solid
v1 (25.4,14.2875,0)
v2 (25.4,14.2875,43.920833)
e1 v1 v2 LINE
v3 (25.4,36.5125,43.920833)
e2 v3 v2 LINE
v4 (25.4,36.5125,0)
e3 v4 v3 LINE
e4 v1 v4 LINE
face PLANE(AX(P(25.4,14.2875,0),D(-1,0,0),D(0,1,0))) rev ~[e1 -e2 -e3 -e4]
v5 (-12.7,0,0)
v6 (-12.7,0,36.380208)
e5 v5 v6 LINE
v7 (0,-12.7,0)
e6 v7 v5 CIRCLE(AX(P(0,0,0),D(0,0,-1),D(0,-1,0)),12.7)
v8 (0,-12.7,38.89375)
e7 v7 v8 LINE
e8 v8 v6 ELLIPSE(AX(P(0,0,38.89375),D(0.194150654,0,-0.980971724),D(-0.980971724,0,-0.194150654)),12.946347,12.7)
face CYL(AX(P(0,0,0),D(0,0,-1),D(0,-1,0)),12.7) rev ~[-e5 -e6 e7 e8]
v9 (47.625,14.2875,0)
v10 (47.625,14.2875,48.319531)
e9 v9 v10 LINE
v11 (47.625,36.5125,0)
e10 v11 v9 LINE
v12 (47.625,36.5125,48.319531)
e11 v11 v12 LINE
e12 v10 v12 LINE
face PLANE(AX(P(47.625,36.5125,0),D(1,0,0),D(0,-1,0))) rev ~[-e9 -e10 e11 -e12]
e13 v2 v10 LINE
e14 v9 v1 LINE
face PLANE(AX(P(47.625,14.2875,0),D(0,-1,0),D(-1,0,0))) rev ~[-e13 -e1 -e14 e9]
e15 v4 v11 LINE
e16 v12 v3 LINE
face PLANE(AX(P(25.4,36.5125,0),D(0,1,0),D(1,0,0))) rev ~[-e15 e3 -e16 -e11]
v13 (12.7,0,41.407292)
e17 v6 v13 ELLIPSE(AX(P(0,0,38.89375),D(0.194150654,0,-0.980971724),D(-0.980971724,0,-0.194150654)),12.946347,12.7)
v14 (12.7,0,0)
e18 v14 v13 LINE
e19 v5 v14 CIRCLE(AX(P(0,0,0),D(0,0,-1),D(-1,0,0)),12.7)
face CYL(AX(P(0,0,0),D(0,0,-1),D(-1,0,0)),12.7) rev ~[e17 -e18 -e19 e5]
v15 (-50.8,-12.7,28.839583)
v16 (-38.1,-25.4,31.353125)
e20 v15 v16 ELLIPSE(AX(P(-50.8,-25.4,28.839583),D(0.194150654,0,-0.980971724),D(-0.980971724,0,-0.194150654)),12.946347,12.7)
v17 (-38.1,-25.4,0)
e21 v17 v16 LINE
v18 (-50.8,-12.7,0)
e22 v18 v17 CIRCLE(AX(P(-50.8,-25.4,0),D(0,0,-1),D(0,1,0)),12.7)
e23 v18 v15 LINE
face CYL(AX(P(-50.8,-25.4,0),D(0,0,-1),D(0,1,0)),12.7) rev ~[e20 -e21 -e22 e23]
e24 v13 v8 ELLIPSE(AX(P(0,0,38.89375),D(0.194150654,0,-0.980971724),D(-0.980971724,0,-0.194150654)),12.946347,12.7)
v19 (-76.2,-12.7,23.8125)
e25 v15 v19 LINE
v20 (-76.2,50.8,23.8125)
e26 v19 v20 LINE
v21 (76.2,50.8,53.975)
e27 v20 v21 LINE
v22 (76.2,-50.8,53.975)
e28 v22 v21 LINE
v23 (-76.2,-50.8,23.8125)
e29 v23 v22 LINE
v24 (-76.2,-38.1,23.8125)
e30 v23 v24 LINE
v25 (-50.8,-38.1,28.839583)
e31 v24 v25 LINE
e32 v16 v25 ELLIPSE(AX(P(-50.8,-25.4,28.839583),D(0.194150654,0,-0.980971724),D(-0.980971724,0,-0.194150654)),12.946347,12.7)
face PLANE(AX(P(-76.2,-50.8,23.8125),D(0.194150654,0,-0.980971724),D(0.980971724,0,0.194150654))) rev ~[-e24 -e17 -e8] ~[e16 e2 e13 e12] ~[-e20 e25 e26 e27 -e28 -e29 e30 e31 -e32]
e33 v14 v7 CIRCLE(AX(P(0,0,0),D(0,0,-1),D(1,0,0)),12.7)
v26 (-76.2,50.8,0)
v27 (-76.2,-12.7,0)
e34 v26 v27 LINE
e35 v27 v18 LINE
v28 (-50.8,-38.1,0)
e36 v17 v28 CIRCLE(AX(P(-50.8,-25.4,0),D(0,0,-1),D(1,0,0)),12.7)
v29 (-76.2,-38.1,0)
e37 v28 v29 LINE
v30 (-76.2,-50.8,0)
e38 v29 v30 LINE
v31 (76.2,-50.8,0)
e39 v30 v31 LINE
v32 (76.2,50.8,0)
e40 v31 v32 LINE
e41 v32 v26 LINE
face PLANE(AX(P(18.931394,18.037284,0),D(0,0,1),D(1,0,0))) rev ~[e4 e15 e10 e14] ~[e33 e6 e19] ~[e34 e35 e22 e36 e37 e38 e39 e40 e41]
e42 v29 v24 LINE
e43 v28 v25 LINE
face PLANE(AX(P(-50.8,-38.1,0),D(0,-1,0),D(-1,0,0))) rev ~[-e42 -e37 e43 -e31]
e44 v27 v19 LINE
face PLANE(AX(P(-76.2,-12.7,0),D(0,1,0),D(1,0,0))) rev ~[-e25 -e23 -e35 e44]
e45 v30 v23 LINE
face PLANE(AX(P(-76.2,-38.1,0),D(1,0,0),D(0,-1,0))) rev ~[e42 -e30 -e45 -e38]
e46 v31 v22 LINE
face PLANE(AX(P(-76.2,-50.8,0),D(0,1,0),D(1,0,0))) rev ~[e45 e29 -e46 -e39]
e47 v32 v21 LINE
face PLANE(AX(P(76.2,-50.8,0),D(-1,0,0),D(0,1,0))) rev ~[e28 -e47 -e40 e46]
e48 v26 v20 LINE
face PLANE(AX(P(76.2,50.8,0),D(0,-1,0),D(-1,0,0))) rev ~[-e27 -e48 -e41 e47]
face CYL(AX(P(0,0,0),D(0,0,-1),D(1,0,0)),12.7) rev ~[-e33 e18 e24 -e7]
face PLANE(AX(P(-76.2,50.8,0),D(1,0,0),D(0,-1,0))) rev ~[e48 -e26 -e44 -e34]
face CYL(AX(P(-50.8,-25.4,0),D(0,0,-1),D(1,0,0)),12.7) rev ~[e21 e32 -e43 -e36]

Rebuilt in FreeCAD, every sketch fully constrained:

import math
import FreeCAD as App
import Part
import Sketcher
Q = App.Units.Quantity

doc = App.newDocument("Part")
body = doc.addObject("PartDesign::Body", "Body")

sketch1 = body.newObject("Sketcher::SketchObject", "Sketch")
sketch1.AttachmentSupport = (doc.getObject("XY_Plane"), [""])
sketch1.MapMode = "FlatFace"
sketch1.addGeometry([
    Part.LineSegment(App.Vector(76.2, -50.8, 0), App.Vector(76.2, 50.8, 0)),
    Part.LineSegment(App.Vector(76.2, 50.8, 0), App.Vector(-76.2, 50.8, 0)),
    Part.LineSegment(App.Vector(-76.2, 50.8, 0), App.Vector(-76.2, -12.7, 0)),
    Part.LineSegment(App.Vector(-76.2, -12.7, 0), App.Vector(-50.8, -12.7, 0)),
    Part.ArcOfCircle(Part.Circle(App.Vector(-50.8, -25.4, 0), App.Vector(0, 0, 1), 12.7), math.radians(0), math.radians(90)),
    Part.ArcOfCircle(Part.Circle(App.Vector(-50.8, -25.4, 0), App.Vector(0, 0, 1), 12.7), math.radians(-90), math.radians(0)),
    Part.LineSegment(App.Vector(-50.8, -38.1, 0), App.Vector(-76.2, -38.1, 0)),
    Part.LineSegment(App.Vector(-76.2, -38.1, 0), App.Vector(-76.2, -50.8, 0)),
    Part.LineSegment(App.Vector(-76.2, -50.8, 0), App.Vector(76.2, -50.8, 0)),
    Part.LineSegment(App.Vector(25.4, 36.5125, 0), App.Vector(47.625, 36.5125, 0)),
    Part.LineSegment(App.Vector(47.625, 36.5125, 0), App.Vector(47.625, 14.2875, 0)),
    Part.LineSegment(App.Vector(47.625, 14.2875, 0), App.Vector(25.4, 14.2875, 0)),
    Part.LineSegment(App.Vector(25.4, 14.2875, 0), App.Vector(25.4, 36.5125, 0)),
    Part.ArcOfCircle(Part.Circle(App.Vector(0, 0, 0), App.Vector(0, 0, 1), 12.7), math.radians(-90), math.radians(0)),
    Part.ArcOfCircle(Part.Circle(App.Vector(0, 0, 0), App.Vector(0, 0, 1), 12.7), math.radians(180), math.radians(270)),
    Part.ArcOfCircle(Part.Circle(App.Vector(0, 0, 0), App.Vector(0, 0, 1), 12.7), math.radians(0), math.radians(180)),
], False)
sketch1.addConstraint([
    Sketcher.Constraint("Coincident", 0, 2, 1, 1),
    Sketcher.Constraint("Coincident", 1, 2, 2, 1),
    Sketcher.Constraint("Coincident", 2, 2, 3, 1),
    Sketcher.Constraint("Tangent", 3, 2, 4, 2),
    Sketcher.Constraint("Tangent", 4, 1, 5, 2),
    Sketcher.Constraint("Tangent", 5, 1, 6, 1),
    Sketcher.Constraint("Coincident", 6, 2, 7, 1),
    Sketcher.Constraint("Coincident", 7, 2, 8, 1),
    Sketcher.Constraint("Coincident", 8, 2, 0, 1),
    Sketcher.Constraint("Coincident", 9, 2, 10, 1),
    Sketcher.Constraint("Coincident", 10, 2, 11, 1),
    Sketcher.Constraint("Coincident", 11, 2, 12, 1),
    Sketcher.Constraint("Coincident", 12, 2, 9, 1),
    Sketcher.Constraint("Tangent", 13, 1, 14, 2),
    Sketcher.Constraint("Tangent", 14, 1, 15, 2),
    Sketcher.Constraint("Tangent", 15, 1, 13, 2),
    Sketcher.Constraint("Vertical", 0),
    Sketcher.Constraint("Horizontal", 1),
    Sketcher.Constraint("Vertical", 2),
    Sketcher.Constraint("Horizontal", 3),
    Sketcher.Constraint("Horizontal", 6),
    Sketcher.Constraint("Vertical", 7),
    Sketcher.Constraint("Horizontal", 8),
    Sketcher.Constraint("Horizontal", 9),
    Sketcher.Constraint("Vertical", 10),
    Sketcher.Constraint("Horizontal", 11),
    Sketcher.Constraint("Vertical", 12),
    Sketcher.Constraint("Coincident", 13, 3, -1, 1),
    Sketcher.Constraint("Equal", 4, 5),
    Sketcher.Constraint("Equal", 5, 13),
    Sketcher.Constraint("Symmetric", 0, 2, 7, 2, -1, 1),
    Sketcher.Constraint("PointOnObject", 13, 1, -2),
    Sketcher.Constraint("PointOnObject", 14, 1, -1),
    Sketcher.Constraint("PointOnObject", 15, 1, -1),
    Sketcher.Constraint("Horizontal", 5, 3, 4, 1),
    Sketcher.Constraint("Horizontal", 3, 2, 13, 1),
    Sketcher.Constraint("Vertical", 2, 2, 6, 2),
    Sketcher.Constraint("Equal", 11, 10),
    Sketcher.Constraint("Radius", 4, Q("0.5 in")),
    Sketcher.Constraint("DistanceX", 1, 2, 1, 1, Q("6 in")),
    Sketcher.Constraint("DistanceX", 3, 1, 3, 2, Q("1 in")),
    Sketcher.Constraint("DistanceY", 0, 1, 0, 2, Q("4 in")),
    Sketcher.Constraint("DistanceX", -1, 1, 11, 2, Q("1 in")),
    Sketcher.Constraint("DistanceX", 9, 1, 9, 2, Q("0.875 in")),
    Sketcher.Constraint("DistanceY", -1, 1, 9, 2, Q("1.4375 in")),
])
pad1 = body.newObject("PartDesign::Pad", "Pad")
pad1.Profile = sketch1
pad1.Length = Q("2.125 in")

sketch2 = body.newObject("Sketcher::SketchObject", "Sketch001")
sketch2.AttachmentSupport = (doc.getObject("XZ_Plane"), [""])
sketch2.MapMode = "FlatFace"
sketch2.AttachmentOffset = App.Placement(App.Vector(0, 0, 2 * 25.4), App.Rotation())
sketch2.addGeometry([
    Part.LineSegment(App.Vector(-76.2, 23.8125, 0), App.Vector(76.2, 53.975, 0)),
    Part.LineSegment(App.Vector(76.2, 53.975, 0), App.Vector(-76.2, 53.975, 0)),
    Part.LineSegment(App.Vector(-76.2, 53.975, 0), App.Vector(-76.2, 23.8125, 0)),
], False)
sketch2.addConstraint([
    Sketcher.Constraint("Coincident", 0, 2, 1, 1),
    Sketcher.Constraint("Coincident", 1, 2, 2, 1),
    Sketcher.Constraint("Coincident", 2, 2, 0, 1),
    Sketcher.Constraint("Horizontal", 1),
    Sketcher.Constraint("Vertical", 2),
    Sketcher.Constraint("DistanceX", 1, 2, 1, 1, Q("6 in")),
    Sketcher.Constraint("DistanceX", -1, 1, 0, 2, Q("3 in")),
    Sketcher.Constraint("DistanceY", 2, 2, 2, 1, Q("1.1875 in")),
    Sketcher.Constraint("DistanceY", -1, 1, 0, 2, Q("2.125 in")),
])
pocket1 = body.newObject("PartDesign::Pocket", "Pocket")
pocket1.Profile = sketch2
pocket1.Length = Q("4 in")

doc.recompute()
